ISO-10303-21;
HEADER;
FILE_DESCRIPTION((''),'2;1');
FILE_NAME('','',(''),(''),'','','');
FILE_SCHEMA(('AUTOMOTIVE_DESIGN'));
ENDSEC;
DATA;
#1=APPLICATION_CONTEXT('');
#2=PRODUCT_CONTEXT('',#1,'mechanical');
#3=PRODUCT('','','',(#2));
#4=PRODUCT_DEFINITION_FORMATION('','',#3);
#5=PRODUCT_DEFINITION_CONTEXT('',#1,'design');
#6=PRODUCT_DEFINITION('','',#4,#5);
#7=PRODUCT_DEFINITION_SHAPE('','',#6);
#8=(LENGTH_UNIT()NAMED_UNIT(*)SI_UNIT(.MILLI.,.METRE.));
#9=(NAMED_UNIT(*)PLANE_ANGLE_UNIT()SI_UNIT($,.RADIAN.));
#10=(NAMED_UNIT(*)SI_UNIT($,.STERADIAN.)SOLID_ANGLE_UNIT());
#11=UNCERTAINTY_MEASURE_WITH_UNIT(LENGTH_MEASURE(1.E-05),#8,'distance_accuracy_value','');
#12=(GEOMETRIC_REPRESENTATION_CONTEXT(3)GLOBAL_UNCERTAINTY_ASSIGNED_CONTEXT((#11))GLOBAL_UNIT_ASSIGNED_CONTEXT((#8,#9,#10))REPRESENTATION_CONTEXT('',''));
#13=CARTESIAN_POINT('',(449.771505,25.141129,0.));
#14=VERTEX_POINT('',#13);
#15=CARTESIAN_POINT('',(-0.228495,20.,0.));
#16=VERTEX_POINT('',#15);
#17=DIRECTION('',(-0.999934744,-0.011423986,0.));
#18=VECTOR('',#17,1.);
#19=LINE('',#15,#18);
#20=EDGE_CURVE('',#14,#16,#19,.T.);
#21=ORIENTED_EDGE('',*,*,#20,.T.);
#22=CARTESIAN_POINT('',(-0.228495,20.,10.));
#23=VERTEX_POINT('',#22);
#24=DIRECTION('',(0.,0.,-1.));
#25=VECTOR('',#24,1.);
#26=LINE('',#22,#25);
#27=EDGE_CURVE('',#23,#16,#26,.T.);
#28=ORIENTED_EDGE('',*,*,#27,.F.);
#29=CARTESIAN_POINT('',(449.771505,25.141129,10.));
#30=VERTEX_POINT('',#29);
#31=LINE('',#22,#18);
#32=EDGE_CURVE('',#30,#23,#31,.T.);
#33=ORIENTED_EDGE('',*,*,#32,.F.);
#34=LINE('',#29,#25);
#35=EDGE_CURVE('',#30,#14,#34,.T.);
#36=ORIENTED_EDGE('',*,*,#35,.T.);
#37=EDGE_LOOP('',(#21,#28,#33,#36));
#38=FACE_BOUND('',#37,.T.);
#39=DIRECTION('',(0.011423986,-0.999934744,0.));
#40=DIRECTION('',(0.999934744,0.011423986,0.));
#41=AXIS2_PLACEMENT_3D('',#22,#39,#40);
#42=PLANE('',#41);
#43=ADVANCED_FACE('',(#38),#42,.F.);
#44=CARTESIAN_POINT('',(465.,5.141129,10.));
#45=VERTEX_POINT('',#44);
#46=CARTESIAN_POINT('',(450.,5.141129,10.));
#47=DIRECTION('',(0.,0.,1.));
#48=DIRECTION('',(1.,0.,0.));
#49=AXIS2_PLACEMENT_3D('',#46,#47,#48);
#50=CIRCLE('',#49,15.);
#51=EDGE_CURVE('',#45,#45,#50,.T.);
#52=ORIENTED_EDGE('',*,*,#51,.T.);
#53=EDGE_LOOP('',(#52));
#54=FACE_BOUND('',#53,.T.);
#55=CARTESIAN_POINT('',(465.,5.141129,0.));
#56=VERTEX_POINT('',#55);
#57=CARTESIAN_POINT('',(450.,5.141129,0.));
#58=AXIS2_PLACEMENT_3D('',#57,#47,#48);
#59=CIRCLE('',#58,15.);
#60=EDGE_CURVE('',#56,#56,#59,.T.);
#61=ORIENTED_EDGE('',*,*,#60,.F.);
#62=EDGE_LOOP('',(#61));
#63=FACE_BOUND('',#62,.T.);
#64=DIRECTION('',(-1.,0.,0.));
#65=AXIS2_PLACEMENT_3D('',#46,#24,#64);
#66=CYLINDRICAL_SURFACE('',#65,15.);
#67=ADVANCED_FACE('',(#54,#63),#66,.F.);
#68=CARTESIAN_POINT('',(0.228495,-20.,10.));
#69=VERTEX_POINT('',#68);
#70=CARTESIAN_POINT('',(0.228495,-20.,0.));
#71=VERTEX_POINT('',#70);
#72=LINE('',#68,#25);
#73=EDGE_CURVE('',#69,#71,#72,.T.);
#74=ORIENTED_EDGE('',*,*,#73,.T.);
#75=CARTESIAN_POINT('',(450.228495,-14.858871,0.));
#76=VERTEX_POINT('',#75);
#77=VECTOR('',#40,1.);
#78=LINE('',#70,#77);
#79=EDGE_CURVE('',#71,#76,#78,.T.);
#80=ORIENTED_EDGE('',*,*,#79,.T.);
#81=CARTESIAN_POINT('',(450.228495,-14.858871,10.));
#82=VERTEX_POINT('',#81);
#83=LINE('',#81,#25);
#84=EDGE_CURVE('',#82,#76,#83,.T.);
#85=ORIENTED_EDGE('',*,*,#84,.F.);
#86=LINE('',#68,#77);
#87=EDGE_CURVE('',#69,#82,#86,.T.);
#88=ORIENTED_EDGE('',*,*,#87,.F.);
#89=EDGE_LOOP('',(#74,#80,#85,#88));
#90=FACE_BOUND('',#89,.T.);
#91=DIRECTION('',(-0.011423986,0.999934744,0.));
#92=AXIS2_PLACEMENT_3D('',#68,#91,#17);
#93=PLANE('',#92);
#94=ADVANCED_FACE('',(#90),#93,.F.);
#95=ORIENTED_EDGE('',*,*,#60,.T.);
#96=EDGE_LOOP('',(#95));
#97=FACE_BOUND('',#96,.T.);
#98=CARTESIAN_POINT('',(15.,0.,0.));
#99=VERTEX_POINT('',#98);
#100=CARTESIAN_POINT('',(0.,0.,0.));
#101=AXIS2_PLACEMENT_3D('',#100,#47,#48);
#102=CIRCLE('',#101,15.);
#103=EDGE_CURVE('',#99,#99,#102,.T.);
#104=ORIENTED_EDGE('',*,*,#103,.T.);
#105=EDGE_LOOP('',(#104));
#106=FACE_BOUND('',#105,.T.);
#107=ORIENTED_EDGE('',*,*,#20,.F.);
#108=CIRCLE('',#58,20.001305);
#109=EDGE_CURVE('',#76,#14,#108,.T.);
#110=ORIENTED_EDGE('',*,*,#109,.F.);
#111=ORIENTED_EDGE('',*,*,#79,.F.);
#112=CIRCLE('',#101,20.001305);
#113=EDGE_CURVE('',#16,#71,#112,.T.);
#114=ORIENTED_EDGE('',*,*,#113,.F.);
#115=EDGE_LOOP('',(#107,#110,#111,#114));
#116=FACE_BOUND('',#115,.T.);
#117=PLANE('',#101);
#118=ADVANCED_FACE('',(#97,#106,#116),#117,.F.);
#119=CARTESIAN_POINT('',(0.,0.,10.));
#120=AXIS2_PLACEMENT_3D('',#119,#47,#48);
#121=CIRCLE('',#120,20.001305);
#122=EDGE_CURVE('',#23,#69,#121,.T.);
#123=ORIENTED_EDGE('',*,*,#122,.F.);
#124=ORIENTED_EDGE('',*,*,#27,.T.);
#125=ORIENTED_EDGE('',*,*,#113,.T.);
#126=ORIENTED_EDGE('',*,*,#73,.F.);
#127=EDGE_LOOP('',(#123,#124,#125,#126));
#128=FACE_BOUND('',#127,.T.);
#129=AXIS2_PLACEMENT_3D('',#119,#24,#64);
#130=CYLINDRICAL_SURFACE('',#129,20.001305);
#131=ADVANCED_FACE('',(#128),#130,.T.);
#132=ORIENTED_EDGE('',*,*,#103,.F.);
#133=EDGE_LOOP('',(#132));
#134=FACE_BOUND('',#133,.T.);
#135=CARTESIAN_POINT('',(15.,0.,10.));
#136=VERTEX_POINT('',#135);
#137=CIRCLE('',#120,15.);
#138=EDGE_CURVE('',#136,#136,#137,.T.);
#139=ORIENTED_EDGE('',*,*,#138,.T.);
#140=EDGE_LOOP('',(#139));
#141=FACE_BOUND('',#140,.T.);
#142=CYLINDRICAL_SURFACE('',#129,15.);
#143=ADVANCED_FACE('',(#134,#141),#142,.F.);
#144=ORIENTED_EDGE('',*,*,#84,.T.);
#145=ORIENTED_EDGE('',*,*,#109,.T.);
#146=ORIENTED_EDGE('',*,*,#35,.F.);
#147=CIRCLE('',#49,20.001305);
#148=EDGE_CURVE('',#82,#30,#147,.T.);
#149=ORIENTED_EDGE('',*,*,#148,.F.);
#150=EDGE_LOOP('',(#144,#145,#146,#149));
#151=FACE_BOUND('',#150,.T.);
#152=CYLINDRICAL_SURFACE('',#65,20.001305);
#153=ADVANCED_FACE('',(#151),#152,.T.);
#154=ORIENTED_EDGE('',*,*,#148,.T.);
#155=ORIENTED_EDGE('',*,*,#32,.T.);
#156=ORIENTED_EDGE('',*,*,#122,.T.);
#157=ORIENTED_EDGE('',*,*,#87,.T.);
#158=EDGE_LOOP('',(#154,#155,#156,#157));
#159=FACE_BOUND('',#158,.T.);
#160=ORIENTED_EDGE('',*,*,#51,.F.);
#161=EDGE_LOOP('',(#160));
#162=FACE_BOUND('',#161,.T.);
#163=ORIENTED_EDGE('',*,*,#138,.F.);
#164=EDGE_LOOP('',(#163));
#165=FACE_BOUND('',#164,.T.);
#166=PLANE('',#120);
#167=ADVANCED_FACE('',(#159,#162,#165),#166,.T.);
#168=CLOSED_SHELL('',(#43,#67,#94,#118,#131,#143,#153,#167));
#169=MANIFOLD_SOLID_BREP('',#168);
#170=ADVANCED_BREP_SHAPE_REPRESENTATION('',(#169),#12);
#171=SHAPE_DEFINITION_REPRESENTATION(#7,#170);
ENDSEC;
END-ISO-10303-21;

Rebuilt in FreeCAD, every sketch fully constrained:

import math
import FreeCAD as App
import Part
import Sketcher

V = App.Vector

doc = App.newDocument("Part")
body = doc.addObject("PartDesign::Body", "Body")

# Sketch on XY plane
sketch1 = body.newObject("Sketcher::SketchObject", "Sketch")
sketch1.AttachmentSupport = (doc.getObject("XY_Plane"), [""])
sketch1.MapMode = "FlatFace"
sketch1.addGeometry([
    Part.LineSegment(V(450, 25, 0), V(0, 20, 0)),  # 0
    Part.ArcOfCircle(Part.Circle(V(0, 0, 0), V(0, 0, 1), 20), math.radians(91), math.radians(271)),  # 1
    Part.LineSegment(V(0, -20, 0), V(450, -15, 0)),  # 2
    Part.ArcOfCircle(Part.Circle(V(450, 5, 0), V(0, 0, 1), 20), math.radians(-89), math.radians(91)),  # 3
    Part.Circle(V(0, 0, 0), V(0, 0, 1), 15),  # 4
    Part.Circle(V(450, 5, 0), V(0, 0, 1), 15),  # 5
], False)
sketch1.addConstraint([
    Sketcher.Constraint("Tangent", 0, 2, 1, 1),
    Sketcher.Constraint("Tangent", 1, 2, 2, 1),
    Sketcher.Constraint("Tangent", 2, 2, 3, 1),
    Sketcher.Constraint("Tangent", 3, 2, 0, 1),
    Sketcher.Constraint("Coincident", 1, 3, -1, 1),
    Sketcher.Constraint("Coincident", 4, 3, -1, 1),
    Sketcher.Constraint("Coincident", 5, 3, 3, 3),
    Sketcher.Constraint("Equal", 1, 3),
    Sketcher.Constraint("Equal", 4, 5),
    Sketcher.Constraint("Diameter", 4, 30.0),
    Sketcher.Constraint("DistanceX", -1, 1, 3, 3, 450.0),
    Sketcher.Constraint("DistanceY", -1, 1, 0, 2, 20.0),
    Sketcher.Constraint("DistanceY", -1, 1, 3, 3, 5.141129),
])
pad1 = body.newObject("PartDesign::Pad", "Pad")
pad1.Profile = sketch1
pad1.Length = 10

doc.recompute()
